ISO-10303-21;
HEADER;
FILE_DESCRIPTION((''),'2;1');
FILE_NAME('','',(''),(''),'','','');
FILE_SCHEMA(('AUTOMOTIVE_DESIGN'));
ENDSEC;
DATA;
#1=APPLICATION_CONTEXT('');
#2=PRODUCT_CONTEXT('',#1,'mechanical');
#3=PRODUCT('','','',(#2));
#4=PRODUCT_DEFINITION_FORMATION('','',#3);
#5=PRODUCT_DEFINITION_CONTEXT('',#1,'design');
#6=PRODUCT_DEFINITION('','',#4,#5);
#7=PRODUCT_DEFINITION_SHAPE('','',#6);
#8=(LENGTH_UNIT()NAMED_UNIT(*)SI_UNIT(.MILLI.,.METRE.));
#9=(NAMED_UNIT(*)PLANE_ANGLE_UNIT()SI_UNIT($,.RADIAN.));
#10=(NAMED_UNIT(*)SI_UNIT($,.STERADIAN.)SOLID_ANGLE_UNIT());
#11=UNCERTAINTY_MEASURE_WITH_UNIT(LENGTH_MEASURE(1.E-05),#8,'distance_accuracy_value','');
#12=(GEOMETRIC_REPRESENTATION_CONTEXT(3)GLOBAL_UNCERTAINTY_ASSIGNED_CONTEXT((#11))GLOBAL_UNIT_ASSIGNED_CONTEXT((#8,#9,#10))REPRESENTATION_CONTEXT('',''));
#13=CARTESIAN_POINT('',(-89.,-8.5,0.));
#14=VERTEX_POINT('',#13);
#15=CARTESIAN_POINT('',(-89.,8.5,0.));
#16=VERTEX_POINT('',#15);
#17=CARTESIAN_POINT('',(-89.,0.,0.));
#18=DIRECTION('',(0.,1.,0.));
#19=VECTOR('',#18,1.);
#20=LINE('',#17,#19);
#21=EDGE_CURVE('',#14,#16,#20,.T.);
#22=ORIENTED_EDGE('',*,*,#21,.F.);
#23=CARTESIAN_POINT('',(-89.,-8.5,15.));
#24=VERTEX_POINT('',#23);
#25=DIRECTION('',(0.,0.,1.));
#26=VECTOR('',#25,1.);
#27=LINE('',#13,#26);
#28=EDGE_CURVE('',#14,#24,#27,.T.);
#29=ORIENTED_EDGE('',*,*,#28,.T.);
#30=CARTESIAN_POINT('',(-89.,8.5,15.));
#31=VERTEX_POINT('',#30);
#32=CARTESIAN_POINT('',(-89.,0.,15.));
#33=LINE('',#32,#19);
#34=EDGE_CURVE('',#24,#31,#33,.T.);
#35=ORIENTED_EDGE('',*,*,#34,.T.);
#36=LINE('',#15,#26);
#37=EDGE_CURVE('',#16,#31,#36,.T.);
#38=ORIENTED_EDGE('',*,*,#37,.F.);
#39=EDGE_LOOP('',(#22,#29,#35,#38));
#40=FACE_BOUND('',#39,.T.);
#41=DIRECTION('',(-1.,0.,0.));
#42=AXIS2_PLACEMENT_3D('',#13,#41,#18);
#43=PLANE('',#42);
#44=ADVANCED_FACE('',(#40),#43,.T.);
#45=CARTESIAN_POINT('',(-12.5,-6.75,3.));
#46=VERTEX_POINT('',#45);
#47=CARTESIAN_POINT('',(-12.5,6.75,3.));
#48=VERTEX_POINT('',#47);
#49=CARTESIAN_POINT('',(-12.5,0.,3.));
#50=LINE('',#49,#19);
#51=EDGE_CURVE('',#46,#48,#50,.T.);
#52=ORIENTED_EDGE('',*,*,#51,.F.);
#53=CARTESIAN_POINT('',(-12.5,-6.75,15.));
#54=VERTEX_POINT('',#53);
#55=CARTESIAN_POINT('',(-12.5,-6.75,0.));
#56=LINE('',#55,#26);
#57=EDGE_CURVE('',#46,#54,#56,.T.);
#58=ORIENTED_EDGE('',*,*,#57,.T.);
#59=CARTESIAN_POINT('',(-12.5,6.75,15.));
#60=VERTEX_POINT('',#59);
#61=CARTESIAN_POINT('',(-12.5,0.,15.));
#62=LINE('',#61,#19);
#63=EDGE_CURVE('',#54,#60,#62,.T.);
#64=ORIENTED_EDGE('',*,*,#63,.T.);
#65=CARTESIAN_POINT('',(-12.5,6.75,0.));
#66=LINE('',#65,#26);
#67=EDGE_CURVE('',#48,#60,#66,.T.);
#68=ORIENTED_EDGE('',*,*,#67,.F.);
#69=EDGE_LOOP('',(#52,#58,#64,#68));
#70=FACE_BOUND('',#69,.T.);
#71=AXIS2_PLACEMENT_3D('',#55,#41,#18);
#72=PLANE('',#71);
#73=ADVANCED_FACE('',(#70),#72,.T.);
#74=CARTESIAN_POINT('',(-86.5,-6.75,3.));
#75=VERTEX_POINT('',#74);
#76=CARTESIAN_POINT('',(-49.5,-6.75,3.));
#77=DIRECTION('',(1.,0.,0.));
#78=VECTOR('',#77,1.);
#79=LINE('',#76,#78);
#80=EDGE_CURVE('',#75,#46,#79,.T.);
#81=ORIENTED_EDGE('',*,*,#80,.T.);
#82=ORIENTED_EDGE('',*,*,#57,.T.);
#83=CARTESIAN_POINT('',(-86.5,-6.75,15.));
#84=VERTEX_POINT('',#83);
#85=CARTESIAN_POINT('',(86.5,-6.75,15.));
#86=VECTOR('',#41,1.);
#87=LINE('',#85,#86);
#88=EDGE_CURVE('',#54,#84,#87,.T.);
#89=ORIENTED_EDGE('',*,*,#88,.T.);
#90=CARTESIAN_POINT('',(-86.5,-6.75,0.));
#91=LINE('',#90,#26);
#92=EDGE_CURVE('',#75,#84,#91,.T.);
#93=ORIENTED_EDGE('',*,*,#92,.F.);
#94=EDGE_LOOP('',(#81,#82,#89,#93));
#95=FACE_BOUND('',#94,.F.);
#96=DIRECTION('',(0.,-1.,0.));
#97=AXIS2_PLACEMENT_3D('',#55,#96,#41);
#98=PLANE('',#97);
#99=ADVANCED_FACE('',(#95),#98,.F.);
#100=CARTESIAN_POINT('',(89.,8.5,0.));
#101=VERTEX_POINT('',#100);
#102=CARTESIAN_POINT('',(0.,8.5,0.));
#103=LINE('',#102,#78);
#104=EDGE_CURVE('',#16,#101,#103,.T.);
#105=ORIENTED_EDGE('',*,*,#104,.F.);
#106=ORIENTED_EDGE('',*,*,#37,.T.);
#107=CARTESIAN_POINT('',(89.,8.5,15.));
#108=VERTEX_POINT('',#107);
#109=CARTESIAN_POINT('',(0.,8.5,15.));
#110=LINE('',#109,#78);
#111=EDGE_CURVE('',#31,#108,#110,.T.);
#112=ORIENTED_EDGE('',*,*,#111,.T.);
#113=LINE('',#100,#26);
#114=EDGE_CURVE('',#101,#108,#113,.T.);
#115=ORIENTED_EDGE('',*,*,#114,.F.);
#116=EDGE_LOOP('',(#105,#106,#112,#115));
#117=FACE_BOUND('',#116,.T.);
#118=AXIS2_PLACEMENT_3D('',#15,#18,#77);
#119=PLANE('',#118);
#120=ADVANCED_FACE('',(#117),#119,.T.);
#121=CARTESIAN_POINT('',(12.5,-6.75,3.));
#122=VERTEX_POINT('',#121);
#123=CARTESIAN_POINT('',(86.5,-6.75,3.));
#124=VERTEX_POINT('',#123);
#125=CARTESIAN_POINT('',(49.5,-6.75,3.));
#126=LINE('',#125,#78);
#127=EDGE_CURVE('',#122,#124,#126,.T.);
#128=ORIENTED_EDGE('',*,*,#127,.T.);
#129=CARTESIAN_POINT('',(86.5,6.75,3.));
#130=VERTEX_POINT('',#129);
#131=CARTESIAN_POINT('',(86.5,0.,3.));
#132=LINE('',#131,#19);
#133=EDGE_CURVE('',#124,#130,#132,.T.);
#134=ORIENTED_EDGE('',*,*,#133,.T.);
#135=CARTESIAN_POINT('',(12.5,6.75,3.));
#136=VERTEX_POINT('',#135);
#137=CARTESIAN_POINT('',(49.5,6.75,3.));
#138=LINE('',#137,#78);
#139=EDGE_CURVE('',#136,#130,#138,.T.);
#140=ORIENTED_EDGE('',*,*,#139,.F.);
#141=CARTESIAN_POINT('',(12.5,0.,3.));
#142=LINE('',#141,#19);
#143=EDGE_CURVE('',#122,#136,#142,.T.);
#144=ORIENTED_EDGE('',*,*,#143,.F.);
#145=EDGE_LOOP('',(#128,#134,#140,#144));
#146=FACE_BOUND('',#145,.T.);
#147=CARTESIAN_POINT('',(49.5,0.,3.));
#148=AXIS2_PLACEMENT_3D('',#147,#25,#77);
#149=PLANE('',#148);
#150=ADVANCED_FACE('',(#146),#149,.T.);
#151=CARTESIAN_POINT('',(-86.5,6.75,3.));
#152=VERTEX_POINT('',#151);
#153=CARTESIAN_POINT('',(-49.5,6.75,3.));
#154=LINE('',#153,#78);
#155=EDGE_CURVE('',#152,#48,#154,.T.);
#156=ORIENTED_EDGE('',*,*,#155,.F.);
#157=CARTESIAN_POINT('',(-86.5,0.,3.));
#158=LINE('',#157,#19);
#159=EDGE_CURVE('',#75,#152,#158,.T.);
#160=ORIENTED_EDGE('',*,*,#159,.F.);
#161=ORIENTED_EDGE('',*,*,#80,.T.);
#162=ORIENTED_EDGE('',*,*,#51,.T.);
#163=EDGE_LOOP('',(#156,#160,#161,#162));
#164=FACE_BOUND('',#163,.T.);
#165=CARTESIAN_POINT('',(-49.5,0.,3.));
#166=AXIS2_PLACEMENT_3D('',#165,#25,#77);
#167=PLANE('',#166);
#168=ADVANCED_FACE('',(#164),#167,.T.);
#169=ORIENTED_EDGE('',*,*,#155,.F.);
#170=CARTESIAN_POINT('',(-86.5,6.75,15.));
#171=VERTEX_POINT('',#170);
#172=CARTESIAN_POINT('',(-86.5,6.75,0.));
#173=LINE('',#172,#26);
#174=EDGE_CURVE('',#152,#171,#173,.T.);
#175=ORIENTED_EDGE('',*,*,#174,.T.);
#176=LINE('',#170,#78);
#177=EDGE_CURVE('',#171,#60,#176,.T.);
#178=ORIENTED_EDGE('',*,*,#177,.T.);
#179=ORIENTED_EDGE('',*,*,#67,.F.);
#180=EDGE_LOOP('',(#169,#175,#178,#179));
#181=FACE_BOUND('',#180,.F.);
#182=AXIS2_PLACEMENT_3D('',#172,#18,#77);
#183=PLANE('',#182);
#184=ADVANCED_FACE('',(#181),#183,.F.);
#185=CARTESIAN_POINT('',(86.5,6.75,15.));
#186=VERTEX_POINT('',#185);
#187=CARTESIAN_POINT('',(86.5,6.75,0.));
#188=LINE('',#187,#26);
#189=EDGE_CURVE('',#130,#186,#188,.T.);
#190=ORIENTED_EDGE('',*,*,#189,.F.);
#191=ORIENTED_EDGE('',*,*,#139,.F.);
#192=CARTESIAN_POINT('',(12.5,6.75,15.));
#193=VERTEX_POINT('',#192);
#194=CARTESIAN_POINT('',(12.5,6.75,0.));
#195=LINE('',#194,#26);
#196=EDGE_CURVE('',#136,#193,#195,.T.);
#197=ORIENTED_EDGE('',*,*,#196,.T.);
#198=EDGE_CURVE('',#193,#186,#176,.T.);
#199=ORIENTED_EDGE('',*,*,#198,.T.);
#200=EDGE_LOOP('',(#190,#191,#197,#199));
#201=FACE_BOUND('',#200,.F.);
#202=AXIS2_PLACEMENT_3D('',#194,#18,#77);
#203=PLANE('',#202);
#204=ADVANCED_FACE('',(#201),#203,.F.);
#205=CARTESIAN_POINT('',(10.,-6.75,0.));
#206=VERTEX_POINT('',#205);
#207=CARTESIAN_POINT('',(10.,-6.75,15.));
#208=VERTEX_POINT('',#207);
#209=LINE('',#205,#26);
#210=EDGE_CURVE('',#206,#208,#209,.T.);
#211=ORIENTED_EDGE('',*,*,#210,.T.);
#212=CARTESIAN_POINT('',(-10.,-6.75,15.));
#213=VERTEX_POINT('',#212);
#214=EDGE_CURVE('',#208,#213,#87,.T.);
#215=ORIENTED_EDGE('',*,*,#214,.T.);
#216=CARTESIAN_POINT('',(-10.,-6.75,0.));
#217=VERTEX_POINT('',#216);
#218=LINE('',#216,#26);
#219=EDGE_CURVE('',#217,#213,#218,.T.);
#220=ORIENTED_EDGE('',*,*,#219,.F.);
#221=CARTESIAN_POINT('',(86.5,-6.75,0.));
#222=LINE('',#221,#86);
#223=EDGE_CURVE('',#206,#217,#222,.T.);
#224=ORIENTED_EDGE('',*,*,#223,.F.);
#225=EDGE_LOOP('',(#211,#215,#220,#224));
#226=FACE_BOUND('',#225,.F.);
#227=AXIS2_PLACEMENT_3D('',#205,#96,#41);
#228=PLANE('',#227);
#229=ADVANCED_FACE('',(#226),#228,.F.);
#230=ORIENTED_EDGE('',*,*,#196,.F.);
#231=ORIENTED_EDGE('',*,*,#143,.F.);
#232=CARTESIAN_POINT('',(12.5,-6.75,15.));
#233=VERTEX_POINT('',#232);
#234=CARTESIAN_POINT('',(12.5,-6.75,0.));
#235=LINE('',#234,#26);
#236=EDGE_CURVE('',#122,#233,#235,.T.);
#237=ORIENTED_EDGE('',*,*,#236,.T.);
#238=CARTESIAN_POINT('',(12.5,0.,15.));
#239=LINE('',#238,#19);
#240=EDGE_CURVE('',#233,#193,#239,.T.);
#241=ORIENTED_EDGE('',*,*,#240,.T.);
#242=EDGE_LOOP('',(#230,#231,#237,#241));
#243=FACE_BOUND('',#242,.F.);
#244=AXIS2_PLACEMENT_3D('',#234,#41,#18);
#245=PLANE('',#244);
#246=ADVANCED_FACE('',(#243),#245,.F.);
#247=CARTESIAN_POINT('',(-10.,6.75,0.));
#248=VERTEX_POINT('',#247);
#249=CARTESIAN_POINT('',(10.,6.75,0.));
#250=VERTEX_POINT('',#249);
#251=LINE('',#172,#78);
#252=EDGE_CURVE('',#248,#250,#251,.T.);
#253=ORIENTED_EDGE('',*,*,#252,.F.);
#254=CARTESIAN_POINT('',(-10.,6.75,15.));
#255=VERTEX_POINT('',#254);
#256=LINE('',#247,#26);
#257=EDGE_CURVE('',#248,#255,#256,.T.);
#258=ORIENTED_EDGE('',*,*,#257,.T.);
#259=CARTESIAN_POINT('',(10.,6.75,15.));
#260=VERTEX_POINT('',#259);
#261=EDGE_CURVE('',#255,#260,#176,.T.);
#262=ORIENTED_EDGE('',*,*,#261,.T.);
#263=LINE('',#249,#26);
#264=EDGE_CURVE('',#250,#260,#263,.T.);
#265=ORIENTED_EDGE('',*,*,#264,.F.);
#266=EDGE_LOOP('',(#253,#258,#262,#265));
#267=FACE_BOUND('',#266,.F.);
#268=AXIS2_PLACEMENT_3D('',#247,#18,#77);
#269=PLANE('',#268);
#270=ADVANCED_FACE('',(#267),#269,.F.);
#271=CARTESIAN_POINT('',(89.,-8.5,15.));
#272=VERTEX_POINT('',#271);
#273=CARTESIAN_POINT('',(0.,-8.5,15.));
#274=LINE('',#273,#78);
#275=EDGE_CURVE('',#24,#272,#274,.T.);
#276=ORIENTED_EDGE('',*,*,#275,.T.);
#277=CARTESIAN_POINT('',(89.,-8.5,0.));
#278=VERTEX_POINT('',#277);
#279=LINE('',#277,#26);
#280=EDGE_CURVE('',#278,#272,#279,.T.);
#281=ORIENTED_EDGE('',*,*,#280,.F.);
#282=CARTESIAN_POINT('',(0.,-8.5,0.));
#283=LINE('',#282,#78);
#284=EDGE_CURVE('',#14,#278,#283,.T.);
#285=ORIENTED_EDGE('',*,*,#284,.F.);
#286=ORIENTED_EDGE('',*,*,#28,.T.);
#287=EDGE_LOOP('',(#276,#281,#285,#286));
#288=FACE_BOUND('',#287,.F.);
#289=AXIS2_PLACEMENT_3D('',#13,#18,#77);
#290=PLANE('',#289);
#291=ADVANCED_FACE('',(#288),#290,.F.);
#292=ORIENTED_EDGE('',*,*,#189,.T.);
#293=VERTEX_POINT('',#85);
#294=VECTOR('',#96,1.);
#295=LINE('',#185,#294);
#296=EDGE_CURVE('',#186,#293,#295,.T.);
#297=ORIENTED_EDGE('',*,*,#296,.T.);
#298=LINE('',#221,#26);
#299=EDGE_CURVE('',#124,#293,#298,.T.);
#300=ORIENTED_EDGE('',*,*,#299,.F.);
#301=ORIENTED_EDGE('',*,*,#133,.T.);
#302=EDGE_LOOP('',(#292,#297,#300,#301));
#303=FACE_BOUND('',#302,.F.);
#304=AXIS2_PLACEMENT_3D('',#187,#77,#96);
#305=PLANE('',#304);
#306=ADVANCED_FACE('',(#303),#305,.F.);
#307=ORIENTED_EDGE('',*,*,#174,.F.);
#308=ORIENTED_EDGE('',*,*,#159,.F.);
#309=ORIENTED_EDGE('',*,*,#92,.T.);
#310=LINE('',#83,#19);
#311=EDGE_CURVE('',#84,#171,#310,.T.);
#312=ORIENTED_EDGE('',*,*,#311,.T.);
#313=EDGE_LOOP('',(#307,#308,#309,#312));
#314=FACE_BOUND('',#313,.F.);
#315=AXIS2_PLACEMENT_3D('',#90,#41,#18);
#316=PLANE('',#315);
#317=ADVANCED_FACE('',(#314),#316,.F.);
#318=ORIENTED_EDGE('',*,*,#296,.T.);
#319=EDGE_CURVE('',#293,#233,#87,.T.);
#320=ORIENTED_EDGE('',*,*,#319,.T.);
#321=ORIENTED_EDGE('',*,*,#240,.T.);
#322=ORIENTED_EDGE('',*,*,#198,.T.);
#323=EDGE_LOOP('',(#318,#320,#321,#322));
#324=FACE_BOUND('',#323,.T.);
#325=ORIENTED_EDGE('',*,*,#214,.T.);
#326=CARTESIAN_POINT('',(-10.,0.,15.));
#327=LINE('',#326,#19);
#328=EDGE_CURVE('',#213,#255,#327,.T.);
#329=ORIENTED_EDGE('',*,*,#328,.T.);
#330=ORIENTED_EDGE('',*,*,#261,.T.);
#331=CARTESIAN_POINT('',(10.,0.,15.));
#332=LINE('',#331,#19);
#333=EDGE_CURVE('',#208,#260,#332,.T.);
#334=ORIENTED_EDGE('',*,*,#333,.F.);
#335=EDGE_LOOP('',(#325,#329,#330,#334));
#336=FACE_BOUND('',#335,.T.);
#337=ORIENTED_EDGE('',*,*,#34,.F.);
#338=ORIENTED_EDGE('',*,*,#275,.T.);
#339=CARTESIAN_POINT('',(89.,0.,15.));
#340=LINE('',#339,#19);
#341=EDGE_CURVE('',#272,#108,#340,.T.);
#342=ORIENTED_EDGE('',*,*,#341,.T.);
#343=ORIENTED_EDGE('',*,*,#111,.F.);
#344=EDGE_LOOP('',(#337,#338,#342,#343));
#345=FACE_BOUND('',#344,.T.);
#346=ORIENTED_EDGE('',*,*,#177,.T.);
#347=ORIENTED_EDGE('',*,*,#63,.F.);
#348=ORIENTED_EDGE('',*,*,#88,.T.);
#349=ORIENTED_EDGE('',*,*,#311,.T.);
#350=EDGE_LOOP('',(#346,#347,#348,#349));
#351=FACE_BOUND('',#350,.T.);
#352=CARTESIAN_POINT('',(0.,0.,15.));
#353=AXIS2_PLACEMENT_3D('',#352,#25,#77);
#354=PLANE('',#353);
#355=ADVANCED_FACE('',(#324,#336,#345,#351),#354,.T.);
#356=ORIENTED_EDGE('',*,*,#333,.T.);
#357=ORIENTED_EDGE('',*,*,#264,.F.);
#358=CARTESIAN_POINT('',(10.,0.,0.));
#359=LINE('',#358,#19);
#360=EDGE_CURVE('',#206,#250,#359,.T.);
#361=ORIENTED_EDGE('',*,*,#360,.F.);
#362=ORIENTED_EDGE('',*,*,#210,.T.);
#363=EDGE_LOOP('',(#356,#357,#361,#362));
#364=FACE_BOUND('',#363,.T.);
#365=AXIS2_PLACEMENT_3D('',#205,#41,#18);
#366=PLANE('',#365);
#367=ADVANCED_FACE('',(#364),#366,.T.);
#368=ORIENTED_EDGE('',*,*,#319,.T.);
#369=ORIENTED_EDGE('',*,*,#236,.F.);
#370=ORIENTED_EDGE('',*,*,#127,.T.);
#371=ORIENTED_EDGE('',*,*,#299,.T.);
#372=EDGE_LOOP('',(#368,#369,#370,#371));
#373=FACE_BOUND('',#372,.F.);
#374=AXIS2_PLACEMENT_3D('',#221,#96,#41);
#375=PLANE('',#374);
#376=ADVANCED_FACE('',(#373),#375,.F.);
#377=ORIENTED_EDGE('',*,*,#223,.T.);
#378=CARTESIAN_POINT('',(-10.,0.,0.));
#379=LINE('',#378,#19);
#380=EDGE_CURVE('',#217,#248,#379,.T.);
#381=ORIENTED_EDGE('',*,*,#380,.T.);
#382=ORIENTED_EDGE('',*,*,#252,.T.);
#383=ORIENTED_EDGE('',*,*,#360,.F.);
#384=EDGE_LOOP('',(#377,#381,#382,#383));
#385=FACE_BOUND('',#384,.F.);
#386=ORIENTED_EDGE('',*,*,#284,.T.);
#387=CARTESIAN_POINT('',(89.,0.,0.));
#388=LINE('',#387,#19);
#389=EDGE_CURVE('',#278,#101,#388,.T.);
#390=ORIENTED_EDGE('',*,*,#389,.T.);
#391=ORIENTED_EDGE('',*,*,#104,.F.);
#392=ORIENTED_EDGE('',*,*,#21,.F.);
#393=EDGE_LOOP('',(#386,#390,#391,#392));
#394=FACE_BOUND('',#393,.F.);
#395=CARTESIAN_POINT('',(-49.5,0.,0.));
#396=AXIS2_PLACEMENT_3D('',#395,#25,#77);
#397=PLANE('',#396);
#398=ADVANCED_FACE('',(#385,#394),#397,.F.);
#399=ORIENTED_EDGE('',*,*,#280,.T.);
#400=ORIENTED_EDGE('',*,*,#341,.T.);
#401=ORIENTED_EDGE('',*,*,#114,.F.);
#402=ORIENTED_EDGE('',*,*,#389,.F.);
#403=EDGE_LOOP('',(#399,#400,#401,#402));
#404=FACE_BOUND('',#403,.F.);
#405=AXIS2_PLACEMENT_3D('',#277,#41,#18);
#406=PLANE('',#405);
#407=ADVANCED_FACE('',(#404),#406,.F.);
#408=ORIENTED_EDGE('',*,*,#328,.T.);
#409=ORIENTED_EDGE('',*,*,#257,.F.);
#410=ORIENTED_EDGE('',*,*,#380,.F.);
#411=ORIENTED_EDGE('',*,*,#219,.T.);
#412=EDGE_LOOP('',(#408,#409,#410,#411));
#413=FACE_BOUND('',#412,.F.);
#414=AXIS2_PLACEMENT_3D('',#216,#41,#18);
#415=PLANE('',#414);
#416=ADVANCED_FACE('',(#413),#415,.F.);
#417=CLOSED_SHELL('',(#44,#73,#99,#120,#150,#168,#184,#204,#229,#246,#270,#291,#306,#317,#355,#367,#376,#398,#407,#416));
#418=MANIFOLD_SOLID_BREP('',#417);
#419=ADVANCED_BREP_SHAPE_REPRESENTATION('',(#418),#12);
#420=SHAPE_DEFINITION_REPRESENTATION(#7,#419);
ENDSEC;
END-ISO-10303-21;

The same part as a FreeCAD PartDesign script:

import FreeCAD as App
import Part
import Sketcher

V = App.Vector


def add_polygon(sketch, points):
    """Adds a closed chain of lines whose ends are joined by coincident constraints."""
    first, n = sketch.GeometryCount, len(points)
    for a, b in zip(points, points[1:] + points[:1]):
        sketch.addGeometry(Part.LineSegment(App.Vector(*a, 0), App.Vector(*b, 0)), False)
    for i in range(n):
        sketch.addConstraint(Sketcher.Constraint("Coincident", first + i, 2, first + (i + 1) % n, 1))

doc = App.newDocument("Part")
params = doc.addObject("Spreadsheet::Sheet", "Params")
for row, (alias, value) in enumerate([
    ("sketch1_width", "178 mm"),
    ("sketch1_width2", "74 mm"),
    ("sketch1_width3", "20 mm"),
    ("sketch1_height", "17 mm"),
    ("sketch1_height2", "13.5 mm"),
    ("pad1_length", "15 mm"),
    ("sketch2_width", "74 mm"),
    ("sketch2_height", "13.5 mm"),
    ("pad2_length", "3 mm"),
], start=1):
    params.set(f"A{row}", alias)
    params.set(f"B{row}", "=" + value)
    params.setAlias(f"B{row}", alias)

body = doc.addObject("PartDesign::Body", "Body")

sketch1 = body.newObject("Sketcher::SketchObject", "Sketch")
sketch1.AttachmentSupport = (doc.getObject("XY_Plane"), [""])
sketch1.MapMode = "FlatFace"
add_polygon(sketch1, [(-89, 8.5), (-89, -8.5), (89, -8.5), (89, 8.5)])
add_polygon(sketch1, [(86.5, -6.75), (12.5, -6.75), (12.5, 6.75), (86.5, 6.75)])
add_polygon(sketch1, [(10, -6.75), (-10, -6.75), (-10, 6.75), (10, 6.75)])
add_polygon(sketch1, [(-12.5, -6.75), (-86.5, -6.75), (-86.5, 6.75), (-12.5, 6.75)])
sketch1.addConstraint([
    Sketcher.Constraint("Vertical", 0),
    Sketcher.Constraint("Horizontal", 1),
    Sketcher.Constraint("Vertical", 2),
    Sketcher.Constraint("Horizontal", 3),
    Sketcher.Constraint("Horizontal", 4),
    Sketcher.Constraint("Vertical", 5),
    Sketcher.Constraint("Horizontal", 6),
    Sketcher.Constraint("Vertical", 7),
    Sketcher.Constraint("Horizontal", 8),
    Sketcher.Constraint("Vertical", 9),
    Sketcher.Constraint("Horizontal", 10),
    Sketcher.Constraint("Vertical", 11),
    Sketcher.Constraint("Horizontal", 12),
    Sketcher.Constraint("Vertical", 13),
    Sketcher.Constraint("Horizontal", 14),
    Sketcher.Constraint("Vertical", 15),
    Sketcher.Constraint("Symmetric", 0, 2, 2, 2, -1, 1),
    Sketcher.Constraint("Symmetric", 8, 2, 10, 2, -1, 1),
    Sketcher.Constraint("Symmetric", 6, 2, 12, 2, -1, 1),
    Sketcher.Constraint("Symmetric", 4, 2, 14, 2, -1, 1),
    Sketcher.Constraint("Horizontal", 7, 2, 8, 2),
    Sketcher.Constraint("Horizontal", 6, 2, 9, 2),
    Sketcher.Constraint("DistanceX", 1, 1, 1, 2, 178.0),
    Sketcher.Constraint("DistanceX", 4, 2, 4, 1, 74.0),
    Sketcher.Constraint("DistanceX", 8, 2, 8, 1, 20.0),
    Sketcher.Constraint("DistanceY", 0, 2, 0, 1, 17.0),
    Sketcher.Constraint("DistanceY", 5, 1, 5, 2, 13.5),
    Sketcher.Constraint("DistanceX", 14, 2, 5, 2, 25.0),
])
sketch1.setExpression("Constraints[38]", "Params.sketch1_width")
sketch1.setExpression("Constraints[39]", "Params.sketch1_width2")
sketch1.setExpression("Constraints[40]", "Params.sketch1_width3")
sketch1.setExpression("Constraints[41]", "Params.sketch1_height")
sketch1.setExpression("Constraints[42]", "Params.sketch1_height2")
pad1 = body.newObject("PartDesign::Pad", "Pad")
pad1.Profile = sketch1
pad1.setExpression("Length", "Params.pad1_length")

sketch2 = body.newObject("Sketcher::SketchObject", "Sketch001")
sketch2.AttachmentSupport = (doc.getObject("XY_Plane"), [""])
sketch2.MapMode = "FlatFace"
add_polygon(sketch2, [(-86.5, 6.75), (-86.5, -6.75), (-12.5, -6.75), (-12.5, 6.75)])
add_polygon(sketch2, [(12.5, 6.75), (12.5, -6.75), (86.5, -6.75), (86.5, 6.75)])
sketch2.addConstraint([
    Sketcher.Constraint("Vertical", 0),
    Sketcher.Constraint("Horizontal", 1),
    Sketcher.Constraint("Vertical", 2),
    Sketcher.Constraint("Horizontal", 3),
    Sketcher.Constraint("Vertical", 4),
    Sketcher.Constraint("Horizontal", 5),
    Sketcher.Constraint("Vertical", 6),
    Sketcher.Constraint("Horizontal", 7),
    Sketcher.Constraint("Symmetric", 2, 2, 4, 2, -1, 1),
    Sketcher.Constraint("Symmetric", 0, 2, 6, 2, -1, 1),
    Sketcher.Constraint("Horizontal", 1, 2, 4, 2),
    Sketcher.Constraint("DistanceX", 1, 1, 1, 2, 74.0),
    Sketcher.Constraint("DistanceY", 0, 2, 0, 1, 13.5),
    Sketcher.Constraint("DistanceX", 1, 2, 4, 2, 25.0),
])
sketch2.setExpression("Constraints[19]", "Params.sketch2_width")
sketch2.setExpression("Constraints[20]", "Params.sketch2_height")
pad2 = body.newObject("PartDesign::Pad", "Pad001")
pad2.Profile = sketch2
pad2.setExpression("Length", "Params.pad2_length")

doc.recompute()
